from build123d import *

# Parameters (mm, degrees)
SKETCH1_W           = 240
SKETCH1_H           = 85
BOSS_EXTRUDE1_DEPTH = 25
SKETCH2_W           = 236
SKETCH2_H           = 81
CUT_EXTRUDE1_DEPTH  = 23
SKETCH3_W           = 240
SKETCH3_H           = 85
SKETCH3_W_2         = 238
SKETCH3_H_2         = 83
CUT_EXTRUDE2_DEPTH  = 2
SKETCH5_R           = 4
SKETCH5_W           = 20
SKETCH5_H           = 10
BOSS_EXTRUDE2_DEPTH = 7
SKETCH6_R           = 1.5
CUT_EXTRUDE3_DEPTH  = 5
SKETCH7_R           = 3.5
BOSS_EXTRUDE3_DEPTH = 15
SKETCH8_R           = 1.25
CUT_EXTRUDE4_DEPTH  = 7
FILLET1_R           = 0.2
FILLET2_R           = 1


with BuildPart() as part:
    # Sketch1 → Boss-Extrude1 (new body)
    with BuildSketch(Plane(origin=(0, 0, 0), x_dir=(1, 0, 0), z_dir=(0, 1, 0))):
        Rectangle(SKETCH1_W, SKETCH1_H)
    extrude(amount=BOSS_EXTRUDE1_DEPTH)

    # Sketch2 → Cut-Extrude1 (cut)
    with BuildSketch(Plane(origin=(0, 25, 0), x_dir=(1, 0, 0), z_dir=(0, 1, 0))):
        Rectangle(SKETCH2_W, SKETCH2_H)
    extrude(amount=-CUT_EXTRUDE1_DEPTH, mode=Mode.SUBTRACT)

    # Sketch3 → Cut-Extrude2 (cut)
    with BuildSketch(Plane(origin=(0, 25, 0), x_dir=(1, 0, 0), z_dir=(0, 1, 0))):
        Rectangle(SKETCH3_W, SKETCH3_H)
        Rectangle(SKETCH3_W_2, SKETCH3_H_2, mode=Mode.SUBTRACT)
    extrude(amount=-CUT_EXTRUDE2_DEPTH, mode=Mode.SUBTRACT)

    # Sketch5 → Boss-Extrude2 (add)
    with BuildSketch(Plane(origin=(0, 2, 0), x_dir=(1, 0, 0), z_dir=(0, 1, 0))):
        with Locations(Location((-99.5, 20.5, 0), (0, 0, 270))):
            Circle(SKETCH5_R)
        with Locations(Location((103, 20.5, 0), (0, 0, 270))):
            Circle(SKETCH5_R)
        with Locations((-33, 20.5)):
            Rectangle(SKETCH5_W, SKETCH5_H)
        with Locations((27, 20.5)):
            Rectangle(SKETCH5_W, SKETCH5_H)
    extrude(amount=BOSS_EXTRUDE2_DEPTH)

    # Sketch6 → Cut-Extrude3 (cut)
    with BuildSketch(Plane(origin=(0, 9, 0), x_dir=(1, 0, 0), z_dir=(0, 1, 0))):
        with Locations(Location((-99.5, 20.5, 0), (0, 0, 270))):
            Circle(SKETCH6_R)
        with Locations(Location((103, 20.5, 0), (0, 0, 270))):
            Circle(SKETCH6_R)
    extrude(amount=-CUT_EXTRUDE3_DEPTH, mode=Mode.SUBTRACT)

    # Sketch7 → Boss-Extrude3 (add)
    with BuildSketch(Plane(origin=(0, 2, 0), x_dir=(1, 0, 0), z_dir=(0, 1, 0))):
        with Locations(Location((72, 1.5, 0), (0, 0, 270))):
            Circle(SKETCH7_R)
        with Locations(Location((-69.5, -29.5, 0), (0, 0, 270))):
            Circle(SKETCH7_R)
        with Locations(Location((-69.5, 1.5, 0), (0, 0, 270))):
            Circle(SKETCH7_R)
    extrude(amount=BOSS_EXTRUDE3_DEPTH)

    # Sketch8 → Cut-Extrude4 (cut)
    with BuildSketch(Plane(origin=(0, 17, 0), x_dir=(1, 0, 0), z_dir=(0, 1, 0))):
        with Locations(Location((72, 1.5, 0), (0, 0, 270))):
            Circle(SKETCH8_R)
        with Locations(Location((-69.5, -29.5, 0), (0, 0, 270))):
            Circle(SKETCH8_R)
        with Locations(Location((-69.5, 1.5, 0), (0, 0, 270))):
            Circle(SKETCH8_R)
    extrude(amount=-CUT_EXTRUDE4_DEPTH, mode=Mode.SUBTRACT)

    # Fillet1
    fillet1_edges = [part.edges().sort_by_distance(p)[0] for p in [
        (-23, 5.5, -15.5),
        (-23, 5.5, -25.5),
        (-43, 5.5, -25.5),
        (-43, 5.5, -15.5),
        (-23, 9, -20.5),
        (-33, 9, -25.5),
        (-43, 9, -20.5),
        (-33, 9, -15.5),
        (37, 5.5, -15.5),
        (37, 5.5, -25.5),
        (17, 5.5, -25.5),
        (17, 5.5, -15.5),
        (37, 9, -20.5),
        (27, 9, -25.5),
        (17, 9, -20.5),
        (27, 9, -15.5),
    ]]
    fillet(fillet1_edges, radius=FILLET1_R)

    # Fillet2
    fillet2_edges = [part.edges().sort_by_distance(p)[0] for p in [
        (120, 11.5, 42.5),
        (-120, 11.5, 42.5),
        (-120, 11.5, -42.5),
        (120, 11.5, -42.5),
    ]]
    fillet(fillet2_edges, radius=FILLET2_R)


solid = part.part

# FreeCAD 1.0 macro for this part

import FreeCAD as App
import Part
import Sketcher

V = App.Vector


def edges_at(feature, points):
    """Names of the edges that pass closest to the given points."""
    edges = feature.Shape.Edges
    near = lambda p: min(range(len(edges)), key=lambda i: edges[i].distToShape(Part.Vertex(*p))[0])
    return sorted({f"Edge{near(p) + 1}" for p in points})


def add_polygon(sketch, points):
    """Adds a closed chain of lines whose ends are joined by coincident constraints."""
    first, n = sketch.GeometryCount, len(points)
    for a, b in zip(points, points[1:] + points[:1]):
        sketch.addGeometry(Part.LineSegment(App.Vector(*a, 0), App.Vector(*b, 0)), False)
    for i in range(n):
        sketch.addConstraint(Sketcher.Constraint("Coincident", first + i, 2, first + (i + 1) % n, 1))

doc = App.newDocument("Part")
body = doc.addObject("PartDesign::Body", "Body")

# Sketch on XZ plane
sketch1 = body.newObject("Sketcher::SketchObject", "Sketch")
sketch1.AttachmentSupport = (doc.getObject("XZ_Plane"), [""])
sketch1.MapMode = "FlatFace"
add_polygon(sketch1, [(-120, -42), (-120, 42), (120, 42), (120, -42)])  # lines 0-3
sketch1.addConstraint(Sketcher.Constraint("Vertical", 0))
sketch1.addConstraint(Sketcher.Constraint("Horizontal", 1))
sketch1.addConstraint(Sketcher.Constraint("Vertical", 2))
sketch1.addConstraint(Sketcher.Constraint("Horizontal", 3))
sketch1.addConstraint(Sketcher.Constraint("Symmetric", 0, 2, 2, 2, -1, 1))
sketch1.addConstraint(Sketcher.Constraint("DistanceX", 1, 1, 1, 2, 240.0))
sketch1.addConstraint(Sketcher.Constraint("DistanceY", 0, 1, 0, 2, 85.0))
pad1 = body.newObject("PartDesign::Pad", "Pad")
pad1.Profile = sketch1
pad1.Length = 25
pad1.Reversed = True

# Sketch on XZ plane
sketch2 = body.newObject("Sketcher::SketchObject", "Sketch001")
sketch2.AttachmentSupport = (doc.getObject("XZ_Plane"), [""])
sketch2.MapMode = "FlatFace"
sketch2.AttachmentOffset = App.Placement(V(0, 0, -25), App.Rotation())
add_polygon(sketch2, [(-118, -40), (-118, 40), (118, 40), (118, -40)])  # lines 0-3
sketch2.addConstraint(Sketcher.Constraint("Vertical", 0))
sketch2.addConstraint(Sketcher.Constraint("Horizontal", 1))
sketch2.addConstraint(Sketcher.Constraint("Vertical", 2))
sketch2.addConstraint(Sketcher.Constraint("Horizontal", 3))
sketch2.addConstraint(Sketcher.Constraint("Symmetric", 0, 2, 2, 2, -1, 1))
sketch2.addConstraint(Sketcher.Constraint("DistanceX", 1, 1, 1, 2, 236.0))
sketch2.addConstraint(Sketcher.Constraint("DistanceY", 0, 1, 0, 2, 81.0))
pocket1 = body.newObject("PartDesign::Pocket", "Pocket")
pocket1.Profile = sketch2
pocket1.Length = 23
pocket1.Reversed = True

# Sketch on XZ plane
sketch3 = body.newObject("Sketcher::SketchObject", "Sketch002")
sketch3.AttachmentSupport = (doc.getObject("XZ_Plane"), [""])
sketch3.MapMode = "FlatFace"
sketch3.AttachmentOffset = App.Placement(V(0, 0, -25), App.Rotation())
add_polygon(sketch3, [(-120, -42), (-120, 42), (120, 42), (120, -42)])  # lines 0-3
add_polygon(sketch3, [(119, 42), (-119, 42), (-119, -42), (119, -42)])  # lines 4-7
sketch3.addConstraint(Sketcher.Constraint("Vertical", 0))
sketch3.addConstraint(Sketcher.Constraint("Horizontal", 1))
sketch3.addConstraint(Sketcher.Constraint("Vertical", 2))
sketch3.addConstraint(Sketcher.Constraint("Horizontal", 3))
sketch3.addConstraint(Sketcher.Constraint("Horizontal", 4))
sketch3.addConstraint(Sketcher.Constraint("Vertical", 5))
sketch3.addConstraint(Sketcher.Constraint("Horizontal", 6))
sketch3.addConstraint(Sketcher.Constraint("Vertical", 7))
sketch3.addConstraint(Sketcher.Constraint("Symmetric", 0, 2, 2, 2, -1, 1))
sketch3.addConstraint(Sketcher.Constraint("Symmetric", 4, 2, 6, 2, -1, 1))
sketch3.addConstraint(Sketcher.Constraint("DistanceX", 1, 1, 1, 2, 240.0))
sketch3.addConstraint(Sketcher.Constraint("DistanceX", 4, 2, 4, 1, 238.0))
sketch3.addConstraint(Sketcher.Constraint("DistanceY", 0, 1, 0, 2, 85.0))
sketch3.addConstraint(Sketcher.Constraint("DistanceY", 5, 2, 5, 1, 83.0))
pocket2 = body.newObject("PartDesign::Pocket", "Pocket001")
pocket2.Profile = sketch3
pocket2.Length = 2
pocket2.Reversed = True

# Sketch on XZ plane
sketch4 = body.newObject("Sketcher::SketchObject", "Sketch003")
sketch4.AttachmentSupport = (doc.getObject("XZ_Plane"), [""])
sketch4.MapMode = "FlatFace"
sketch4.AttachmentOffset = App.Placement(V(0, 0, -2), App.Rotation())
sketch4.addGeometry(Part.Circle(V(-99.5, -20.5, 0), V(0, 0, 1), 4), False)  # 0
sketch4.addGeometry(Part.Circle(V(103, -20.5, 0), V(0, 0, 1), 4), False)  # 1
add_polygon(sketch4, [(-43, -25.5), (-43, -15.5), (-23, -15.5), (-23, -25.5)])  # lines 2-5
add_polygon(sketch4, [(17, -25.5), (17, -15.5), (37, -15.5), (37, -25.5)])  # lines 6-9
sketch4.addConstraint(Sketcher.Constraint("Vertical", 2))
sketch4.addConstraint(Sketcher.Constraint("Horizontal", 3))
sketch4.addConstraint(Sketcher.Constraint("Vertical", 4))
sketch4.addConstraint(Sketcher.Constraint("Horizontal", 5))
sketch4.addConstraint(Sketcher.Constraint("Vertical", 6))
sketch4.addConstraint(Sketcher.Constraint("Horizontal", 7))
sketch4.addConstraint(Sketcher.Constraint("Vertical", 8))
sketch4.addConstraint(Sketcher.Constraint("Horizontal", 9))
sketch4.addConstraint(Sketcher.Constraint("Equal", 0, 1))
sketch4.addConstraint(Sketcher.Constraint("Horizontal", 0, 3, 1, 3))
sketch4.addConstraint(Sketcher.Constraint("Horizontal", 3, 2, 6, 2))
sketch4.addConstraint(Sketcher.Constraint("Horizontal", 5, 2, 8, 2))
sketch4.addConstraint(Sketcher.Constraint("Equal", 5, 7))
sketch4.addConstraint(Sketcher.Constraint("Diameter", 0, 8.0))
sketch4.addConstraint(Sketcher.Constraint("DistanceX", 3, 1, 3, 2, 20.0))
sketch4.addConstraint(Sketcher.Constraint("DistanceY", 2, 1, 2, 2, 10.0))
sketch4.addConstraint(Sketcher.Constraint("DistanceX", -1, 1, 1, 3, 103.0))
sketch4.addConstraint(Sketcher.Constraint("DistanceX", 2, 2, -1, 1, 43.0))
sketch4.addConstraint(Sketcher.Constraint("DistanceX", -1, 1, 6, 2, 17.0))
sketch4.addConstraint(Sketcher.Constraint("DistanceY", 0, 3, 2, 2, 5.0))
sketch4.addConstraint(Sketcher.Constraint("DistanceX", 0, 3, -1, 1, 99.5))
sketch4.addConstraint(Sketcher.Constraint("DistanceY", 0, 3, -1, 1, 20.5))
pad2 = body.newObject("PartDesign::Pad", "Pad001")
pad2.Profile = sketch4
pad2.Length = 7
pad2.Reversed = True

# Sketch on XZ plane
sketch5 = body.newObject("Sketcher::SketchObject", "Sketch004")
sketch5.AttachmentSupport = (doc.getObject("XZ_Plane"), [""])
sketch5.MapMode = "FlatFace"
sketch5.AttachmentOffset = App.Placement(V(0, 0, -9), App.Rotation())
sketch5.addGeometry(Part.Circle(V(-99.5, -20.5, 0), V(0, 0, 1), 1.5), False)
sketch5.addGeometry(Part.Circle(V(103, -20.5, 0), V(0, 0, 1), 1.5), False)
sketch5.addConstraint(Sketcher.Constraint("Equal", 0, 1))
sketch5.addConstraint(Sketcher.Constraint("Horizontal", 0, 3, 1, 3))
sketch5.addConstraint(Sketcher.Constraint("Diameter", 0, 3.0))
sketch5.addConstraint(Sketcher.Constraint("DistanceX", -1, 1, 1, 3, 103.0))
sketch5.addConstraint(Sketcher.Constraint("DistanceX", 0, 3, -1, 1, 99.5))
sketch5.addConstraint(Sketcher.Constraint("DistanceY", 0, 3, -1, 1, 20.5))
pocket3 = body.newObject("PartDesign::Pocket", "Pocket002")
pocket3.Profile = sketch5
pocket3.Length = 5
pocket3.Reversed = True

# Sketch on XZ plane
sketch6 = body.newObject("Sketcher::SketchObject", "Sketch005")
sketch6.AttachmentSupport = (doc.getObject("XZ_Plane"), [""])
sketch6.MapMode = "FlatFace"
sketch6.AttachmentOffset = App.Placement(V(0, 0, -2), App.Rotation())
sketch6.addGeometry(Part.Circle(V(72, -1.5, 0), V(0, 0, 1), 3.5), False)
sketch6.addGeometry(Part.Circle(V(-69.5, 29.5, 0), V(0, 0, 1), 3.5), False)
sketch6.addGeometry(Part.Circle(V(-69.5, -1.5, 0), V(0, 0, 1), 3.5), False)
sketch6.addConstraint(Sketcher.Constraint("Equal", 0, 1))
sketch6.addConstraint(Sketcher.Constraint("Equal", 1, 2))
sketch6.addConstraint(Sketcher.Constraint("Horizontal", 0, 3, 2, 3))
sketch6.addConstraint(Sketcher.Constraint("Vertical", 1, 3, 2, 3))
sketch6.addConstraint(Sketcher.Constraint("Diameter", 0, 7.0))
sketch6.addConstraint(Sketcher.Constraint("DistanceX", -1, 1, 0, 3, 72.0))
sketch6.addConstraint(Sketcher.Constraint("DistanceY", 0, 3, 1, 3, 31.0))
sketch6.addConstraint(Sketcher.Constraint("DistanceY", 0, 3, -1, 1, 1.5))
sketch6.addConstraint(Sketcher.Constraint("DistanceX", 1, 3, -1, 1, 69.5))
pad3 = body.newObject("PartDesign::Pad", "Pad002")
pad3.Profile = sketch6
pad3.Length = 15
pad3.Reversed = True

# Sketch on XZ plane
sketch7 = body.newObject("Sketcher::SketchObject", "Sketch006")
sketch7.AttachmentSupport = (doc.getObject("XZ_Plane"), [""])
sketch7.MapMode = "FlatFace"
sketch7.AttachmentOffset = App.Placement(V(0, 0, -17), App.Rotation())
sketch7.addGeometry(Part.Circle(V(72, -1.5, 0), V(0, 0, 1), 1.2), False)
sketch7.addGeometry(Part.Circle(V(-69.5, 29.5, 0), V(0, 0, 1), 1.2), False)
sketch7.addGeometry(Part.Circle(V(-69.5, -1.5, 0), V(0, 0, 1), 1.2), False)
sketch7.addConstraint(Sketcher.Constraint("Equal", 0, 1))
sketch7.addConstraint(Sketcher.Constraint("Equal", 1, 2))
sketch7.addConstraint(Sketcher.Constraint("Horizontal", 0, 3, 2, 3))
sketch7.addConstraint(Sketcher.Constraint("Vertical", 1, 3, 2, 3))
sketch7.addConstraint(Sketcher.Constraint("Diameter", 0, 2.5))
sketch7.addConstraint(Sketcher.Constraint("DistanceX", -1, 1, 0, 3, 72.0))
sketch7.addConstraint(Sketcher.Constraint("DistanceY", 0, 3, 1, 3, 31.0))
sketch7.addConstraint(Sketcher.Constraint("DistanceY", 0, 3, -1, 1, 1.5))
sketch7.addConstraint(Sketcher.Constraint("DistanceX", 1, 3, -1, 1, 69.5))
pocket4 = body.newObject("PartDesign::Pocket", "Pocket003")
pocket4.Profile = sketch7
pocket4.Length = 7
pocket4.Reversed = True
doc.recompute()

fillet = body.newObject("PartDesign::Fillet", "Fillet")
fillet.Base = (pocket4, edges_at(pocket4, [
    (-23, 5.5, -15.5),
    (-23, 5.5, -25.5),
    (-43, 5.5, -25.5),
    (-43, 5.5, -15.5),
    (-23, 9, -20.5),
    (-33, 9, -25.5),
    (-43, 9, -20.5),
    (-33, 9, -15.5),
    (37, 5.5, -15.5),
    (37, 5.5, -25.5),
    (17, 5.5, -25.5),
    (17, 5.5, -15.5),
    (37, 9, -20.5),
    (27, 9, -25.5),
    (17, 9, -20.5),
    (27, 9, -15.5),
]))
fillet.Radius = 0.2
doc.recompute()

fillet2 = body.newObject("PartDesign::Fillet", "Fillet001")
fillet2.Base = (fillet, edges_at(fillet, [
    (120, 11.5, 42.5),
    (-120, 11.5, 42.5),
    (-120, 11.5, -42.5),
    (120, 11.5, -42.5),
]))
fillet2.Radius = 1

doc.recompute()
